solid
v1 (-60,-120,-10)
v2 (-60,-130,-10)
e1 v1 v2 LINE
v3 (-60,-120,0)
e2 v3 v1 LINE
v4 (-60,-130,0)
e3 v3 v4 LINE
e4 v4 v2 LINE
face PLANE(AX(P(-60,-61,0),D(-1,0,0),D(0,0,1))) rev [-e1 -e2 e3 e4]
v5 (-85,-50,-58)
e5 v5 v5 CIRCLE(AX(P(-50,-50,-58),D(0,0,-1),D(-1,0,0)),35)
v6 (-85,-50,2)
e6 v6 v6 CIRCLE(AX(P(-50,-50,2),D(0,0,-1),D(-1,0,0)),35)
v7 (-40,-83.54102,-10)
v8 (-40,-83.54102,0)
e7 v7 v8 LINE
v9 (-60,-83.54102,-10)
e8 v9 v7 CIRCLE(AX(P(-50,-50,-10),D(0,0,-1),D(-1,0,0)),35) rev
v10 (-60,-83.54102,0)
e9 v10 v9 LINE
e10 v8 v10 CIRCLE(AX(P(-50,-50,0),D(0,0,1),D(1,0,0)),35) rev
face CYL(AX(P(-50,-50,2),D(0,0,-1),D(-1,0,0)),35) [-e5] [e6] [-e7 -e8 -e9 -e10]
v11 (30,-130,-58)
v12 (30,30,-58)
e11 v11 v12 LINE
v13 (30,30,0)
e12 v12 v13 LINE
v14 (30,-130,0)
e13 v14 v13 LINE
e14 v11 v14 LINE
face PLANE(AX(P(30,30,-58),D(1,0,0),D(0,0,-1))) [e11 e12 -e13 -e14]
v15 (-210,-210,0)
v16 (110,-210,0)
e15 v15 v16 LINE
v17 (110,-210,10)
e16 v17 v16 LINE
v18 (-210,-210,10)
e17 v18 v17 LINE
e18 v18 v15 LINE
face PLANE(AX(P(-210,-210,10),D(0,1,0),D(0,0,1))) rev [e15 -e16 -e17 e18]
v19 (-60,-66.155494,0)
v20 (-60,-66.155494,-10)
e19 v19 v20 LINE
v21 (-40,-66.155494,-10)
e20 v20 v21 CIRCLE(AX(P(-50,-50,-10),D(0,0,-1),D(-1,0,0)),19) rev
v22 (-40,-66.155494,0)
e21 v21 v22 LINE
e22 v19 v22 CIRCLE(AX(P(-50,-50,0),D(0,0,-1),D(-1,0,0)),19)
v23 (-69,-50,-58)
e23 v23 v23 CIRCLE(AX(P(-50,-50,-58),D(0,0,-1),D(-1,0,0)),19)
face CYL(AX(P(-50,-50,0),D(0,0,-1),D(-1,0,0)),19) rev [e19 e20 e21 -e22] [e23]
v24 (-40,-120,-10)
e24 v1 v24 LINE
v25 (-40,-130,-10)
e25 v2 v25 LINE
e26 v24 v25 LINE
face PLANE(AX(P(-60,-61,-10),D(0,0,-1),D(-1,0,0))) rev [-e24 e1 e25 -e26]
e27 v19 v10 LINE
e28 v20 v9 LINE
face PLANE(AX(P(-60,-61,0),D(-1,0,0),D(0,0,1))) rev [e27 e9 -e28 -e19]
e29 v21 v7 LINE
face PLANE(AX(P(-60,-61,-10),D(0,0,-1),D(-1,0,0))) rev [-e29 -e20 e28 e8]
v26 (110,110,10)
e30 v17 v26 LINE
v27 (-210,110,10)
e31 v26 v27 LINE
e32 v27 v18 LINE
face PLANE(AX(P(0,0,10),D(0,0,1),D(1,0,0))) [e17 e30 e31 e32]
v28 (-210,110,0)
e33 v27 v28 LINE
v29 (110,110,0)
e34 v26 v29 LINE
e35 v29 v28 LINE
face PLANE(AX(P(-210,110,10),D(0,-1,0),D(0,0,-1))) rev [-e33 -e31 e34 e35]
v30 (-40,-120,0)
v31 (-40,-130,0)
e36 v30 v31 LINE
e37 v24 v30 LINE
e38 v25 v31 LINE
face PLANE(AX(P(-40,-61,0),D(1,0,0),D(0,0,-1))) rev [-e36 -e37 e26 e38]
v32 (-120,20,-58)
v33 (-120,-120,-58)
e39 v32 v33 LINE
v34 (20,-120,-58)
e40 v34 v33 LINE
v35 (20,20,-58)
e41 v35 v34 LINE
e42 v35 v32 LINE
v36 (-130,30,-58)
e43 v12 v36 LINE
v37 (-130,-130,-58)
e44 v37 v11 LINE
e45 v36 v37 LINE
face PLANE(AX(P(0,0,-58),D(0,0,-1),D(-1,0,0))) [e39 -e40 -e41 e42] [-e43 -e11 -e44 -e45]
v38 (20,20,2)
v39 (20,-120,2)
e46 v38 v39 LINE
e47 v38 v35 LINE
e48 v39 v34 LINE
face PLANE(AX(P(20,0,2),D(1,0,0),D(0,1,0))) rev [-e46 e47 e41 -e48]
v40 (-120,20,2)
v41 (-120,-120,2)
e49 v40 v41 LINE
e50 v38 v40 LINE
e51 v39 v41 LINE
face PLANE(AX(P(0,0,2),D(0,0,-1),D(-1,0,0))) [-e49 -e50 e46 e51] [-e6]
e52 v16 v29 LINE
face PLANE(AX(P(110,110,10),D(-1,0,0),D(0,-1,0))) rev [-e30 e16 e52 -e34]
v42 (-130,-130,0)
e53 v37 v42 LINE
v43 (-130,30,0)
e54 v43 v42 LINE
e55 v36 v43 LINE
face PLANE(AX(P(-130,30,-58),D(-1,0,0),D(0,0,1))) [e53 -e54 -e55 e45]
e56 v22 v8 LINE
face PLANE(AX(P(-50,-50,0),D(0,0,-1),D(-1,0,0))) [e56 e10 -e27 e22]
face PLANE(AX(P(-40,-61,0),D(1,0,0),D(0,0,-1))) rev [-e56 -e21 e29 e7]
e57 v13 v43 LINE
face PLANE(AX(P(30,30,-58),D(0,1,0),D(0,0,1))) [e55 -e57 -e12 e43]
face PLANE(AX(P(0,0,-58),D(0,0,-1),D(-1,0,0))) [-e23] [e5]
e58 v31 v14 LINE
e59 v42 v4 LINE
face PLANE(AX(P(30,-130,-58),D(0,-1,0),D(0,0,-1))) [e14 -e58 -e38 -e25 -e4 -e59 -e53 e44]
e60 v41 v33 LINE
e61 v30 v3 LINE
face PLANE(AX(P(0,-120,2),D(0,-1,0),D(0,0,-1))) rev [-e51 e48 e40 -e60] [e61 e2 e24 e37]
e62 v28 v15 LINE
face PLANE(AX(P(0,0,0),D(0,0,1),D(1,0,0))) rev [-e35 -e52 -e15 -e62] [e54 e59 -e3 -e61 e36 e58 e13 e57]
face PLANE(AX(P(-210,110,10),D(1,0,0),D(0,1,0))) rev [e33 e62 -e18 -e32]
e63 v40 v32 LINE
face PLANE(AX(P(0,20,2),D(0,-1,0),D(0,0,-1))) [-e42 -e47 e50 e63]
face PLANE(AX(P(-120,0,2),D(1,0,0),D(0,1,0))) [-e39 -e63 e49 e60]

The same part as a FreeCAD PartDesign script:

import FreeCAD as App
import Part
import Sketcher
Q = App.Units.Quantity

doc = App.newDocument("Part")
body = doc.addObject("PartDesign::Body", "Body")

# Sketch on XY plane
sketch1 = body.newObject("Sketcher::SketchObject", "Sketch")
sketch1.AttachmentSupport = (doc.getObject("XY_Plane"), [""])
sketch1.MapMode = "FlatFace"
sketch1.addGeometry(Part.LineSegment(App.Vector(-210, 110, 0), App.Vector(-210, -210, 0)), False)
sketch1.addGeometry(Part.LineSegment(App.Vector(-210, -210, 0), App.Vector(110, -210, 0)), False)
sketch1.addGeometry(Part.LineSegment(App.Vector(110, -210, 0), App.Vector(110, 110, 0)), False)
sketch1.addGeometry(Part.LineSegment(App.Vector(110, 110, 0), App.Vector(-210, 110, 0)), False)
sketch1.addConstraint(Sketcher.Constraint("Coincident", 0, 2, 1, 1))
sketch1.addConstraint(Sketcher.Constraint("Coincident", 1, 2, 2, 1))
sketch1.addConstraint(Sketcher.Constraint("Coincident", 2, 2, 3, 1))
sketch1.addConstraint(Sketcher.Constraint("Coincident", 3, 2, 0, 1))
sketch1.addConstraint(Sketcher.Constraint("Vertical", 0))
sketch1.addConstraint(Sketcher.Constraint("Horizontal", 1))
sketch1.addConstraint(Sketcher.Constraint("Vertical", 2))
sketch1.addConstraint(Sketcher.Constraint("Horizontal", 3))
sketch1.addConstraint(Sketcher.Constraint("Equal", 3, 0))
sketch1.addConstraint(Sketcher.Constraint("DistanceX", 1, 1, 1, 2, Q("320 mm")))
sketch1.addConstraint(Sketcher.Constraint("DistanceX", 0, 2, -1, 1, Q("210 mm")))
sketch1.addConstraint(Sketcher.Constraint("DistanceY", 0, 2, -1, 1, Q("210 mm")))
pad1 = body.newObject("PartDesign::Pad", "Pad")
pad1.Profile = sketch1
pad1.Length = 10

# Sketch on XY plane
sketch2 = body.newObject("Sketcher::SketchObject", "Sketch001")
sketch2.AttachmentSupport = (doc.getObject("XY_Plane"), [""])
sketch2.MapMode = "FlatFace"
sketch2.addGeometry(Part.LineSegment(App.Vector(-130, 30, 0), App.Vector(-130, -130, 0)), False)
sketch2.addGeometry(Part.LineSegment(App.Vector(-130, -130, 0), App.Vector(30, -130, 0)), False)
sketch2.addGeometry(Part.LineSegment(App.Vector(30, -130, 0), App.Vector(30, 30, 0)), False)
sketch2.addGeometry(Part.LineSegment(App.Vector(30, 30, 0), App.Vector(-130, 30, 0)), False)
sketch2.addConstraint(Sketcher.Constraint("Coincident", 0, 2, 1, 1))
sketch2.addConstraint(Sketcher.Constraint("Coincident", 1, 2, 2, 1))
sketch2.addConstraint(Sketcher.Constraint("Coincident", 2, 2, 3, 1))
sketch2.addConstraint(Sketcher.Constraint("Coincident", 3, 2, 0, 1))
sketch2.addConstraint(Sketcher.Constraint("Vertical", 0))
sketch2.addConstraint(Sketcher.Constraint("Horizontal", 1))
sketch2.addConstraint(Sketcher.Constraint("Vertical", 2))
sketch2.addConstraint(Sketcher.Constraint("Horizontal", 3))
sketch2.addConstraint(Sketcher.Constraint("Equal", 3, 0))
sketch2.addConstraint(Sketcher.Constraint("DistanceX", 1, 1, 1, 2, Q("160 mm")))
sketch2.addConstraint(Sketcher.Constraint("DistanceX", 0, 2, -1, 1, Q("130 mm")))
sketch2.addConstraint(Sketcher.Constraint("DistanceY", 0, 2, -1, 1, Q("130 mm")))
pad2 = body.newObject("PartDesign::Pad", "Pad001")
pad2.Profile = sketch2
pad2.Length = 58
pad2.Reversed = True

# Sketch on XY plane
sketch3 = body.newObject("Sketcher::SketchObject", "Sketch002")
sketch3.AttachmentSupport = (doc.getObject("XY_Plane"), [""])
sketch3.MapMode = "FlatFace"
sketch3.AttachmentOffset = App.Placement(App.Vector(0, 0, -58), App.Rotation())
sketch3.addGeometry(Part.Circle(App.Vector(-50, -50, 0), App.Vector(0, 0, 1), 19), False)
sketch3.addConstraint(Sketcher.Constraint("Diameter", 0, Q("38 mm")))
sketch3.addConstraint(Sketcher.Constraint("DistanceX", 0, 3, -1, 1, Q("50 mm")))
sketch3.addConstraint(Sketcher.Constraint("DistanceY", 0, 3, -1, 1, Q("50 mm")))
pocket1 = body.newObject("PartDesign::Pocket", "Pocket")
pocket1.Profile = sketch3
pocket1.Length = 58
pocket1.Reversed = True

# Sketch on XY plane
sketch4 = body.newObject("Sketcher::SketchObject", "Sketch003")
sketch4.AttachmentSupport = (doc.getObject("XY_Plane"), [""])
sketch4.MapMode = "FlatFace"
sketch4.AttachmentOffset = App.Placement(App.Vector(0, 0, -58), App.Rotation())
sketch4.addGeometry(Part.LineSegment(App.Vector(20, 20, 0), App.Vector(20, -120, 0)), False)
sketch4.addGeometry(Part.LineSegment(App.Vector(20, -120, 0), App.Vector(-120, -120, 0)), False)
sketch4.addGeometry(Part.LineSegment(App.Vector(-120, -120, 0), App.Vector(-120, 20, 0)), False)
sketch4.addGeometry(Part.LineSegment(App.Vector(-120, 20, 0), App.Vector(20, 20, 0)), False)
sketch4.addGeometry(Part.Circle(App.Vector(-50, -50, 0), App.Vector(0, 0, 1), 35), False)
sketch4.addConstraint(Sketcher.Constraint("Coincident", 0, 2, 1, 1))
sketch4.addConstraint(Sketcher.Constraint("Coincident", 1, 2, 2, 1))
sketch4.addConstraint(Sketcher.Constraint("Coincident", 2, 2, 3, 1))
sketch4.addConstraint(Sketcher.Constraint("Coincident", 3, 2, 0, 1))
sketch4.addConstraint(Sketcher.Constraint("Vertical", 0))
sketch4.addConstraint(Sketcher.Constraint("Horizontal", 1))
sketch4.addConstraint(Sketcher.Constraint("Vertical", 2))
sketch4.addConstraint(Sketcher.Constraint("Horizontal", 3))
sketch4.addConstraint(Sketcher.Constraint("Equal", 3, 0))
sketch4.addConstraint(Sketcher.Constraint("Diameter", 4, Q("70 mm")))
sketch4.addConstraint(Sketcher.Constraint("DistanceX", 1, 2, 1, 1, Q("140 mm")))
sketch4.addConstraint(Sketcher.Constraint("DistanceX", 4, 3, -1, 1, Q("50 mm")))
sketch4.addConstraint(Sketcher.Constraint("DistanceY", 4, 3, -1, 1, Q("50 mm")))
sketch4.addConstraint(Sketcher.Constraint("DistanceX", -1, 1, 0, 2, Q("20 mm")))
sketch4.addConstraint(Sketcher.Constraint("DistanceY", 0, 2, -1, 1, Q("120 mm")))
pocket2 = body.newObject("PartDesign::Pocket", "Pocket001")
pocket2.Profile = sketch4
pocket2.Length = 60
pocket2.Reversed = True

# Sketch on XZ plane
sketch5 = body.newObject("Sketcher::SketchObject", "Sketch004")
sketch5.AttachmentSupport = (doc.getObject("XZ_Plane"), [""])
sketch5.MapMode = "FlatFace"
sketch5.AttachmentOffset = App.Placement(App.Vector(0, 0, 130), App.Rotation())
sketch5.addGeometry(Part.LineSegment(App.Vector(-60, 0, 0), App.Vector(-60, -10, 0)), False)
sketch5.addGeometry(Part.LineSegment(App.Vector(-60, -10, 0), App.Vector(-40, -10, 0)), False)
sketch5.addGeometry(Part.LineSegment(App.Vector(-40, -10, 0), App.Vector(-40, 0, 0)), False)
sketch5.addGeometry(Part.LineSegment(App.Vector(-40, 0, 0), App.Vector(-60, 0, 0)), False)
sketch5.addConstraint(Sketcher.Constraint("Coincident", 0, 2, 1, 1))
sketch5.addConstraint(Sketcher.Constraint("Coincident", 1, 2, 2, 1))
sketch5.addConstraint(Sketcher.Constraint("Coincident", 2, 2, 3, 1))
sketch5.addConstraint(Sketcher.Constraint("Coincident", 3, 2, 0, 1))
sketch5.addConstraint(Sketcher.Constraint("Vertical", 0))
sketch5.addConstraint(Sketcher.Constraint("Horizontal", 1))
sketch5.addConstraint(Sketcher.Constraint("Vertical", 2))
sketch5.addConstraint(Sketcher.Constraint("Horizontal", 3))
sketch5.addConstraint(Sketcher.Constraint("PointOnObject", 2, 2, -1))
sketch5.addConstraint(Sketcher.Constraint("DistanceX", 1, 1, 1, 2, Q("20 mm")))
sketch5.addConstraint(Sketcher.Constraint("DistanceY", 0, 2, 0, 1, Q("10 mm")))
sketch5.addConstraint(Sketcher.Constraint("DistanceX", 0, 2, -1, 1, Q("60 mm")))
pocket3 = body.newObject("PartDesign::Pocket", "Pocket002")
pocket3.Profile = sketch5
pocket3.Length = 69

doc.recompute()
